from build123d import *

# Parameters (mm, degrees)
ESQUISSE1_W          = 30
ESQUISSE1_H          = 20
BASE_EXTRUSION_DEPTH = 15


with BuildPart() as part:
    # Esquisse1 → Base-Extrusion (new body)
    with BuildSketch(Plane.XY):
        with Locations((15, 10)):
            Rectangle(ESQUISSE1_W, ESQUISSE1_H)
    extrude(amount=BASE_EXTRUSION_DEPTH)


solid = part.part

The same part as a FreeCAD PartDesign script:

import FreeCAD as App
import Part
import Sketcher
from FreeCAD import Vector


def add_polygon(sketch, points):
    """Adds a closed chain of lines whose ends are joined by coincident constraints."""
    first, n = sketch.GeometryCount, len(points)
    for a, b in zip(points, points[1:] + points[:1]):
        sketch.addGeometry(Part.LineSegment(App.Vector(*a, 0), App.Vector(*b, 0)), False)
    for i in range(n):
        sketch.addConstraint(Sketcher.Constraint("Coincident", first + i, 2, first + (i + 1) % n, 1))

doc = App.newDocument("Part")
body = doc.addObject("PartDesign::Body", "Body")

sketch1 = body.newObject("Sketcher::SketchObject", "Sketch")
sketch1.AttachmentSupport = (doc.getObject("XY_Plane"), [""])
sketch1.MapMode = "FlatFace"
add_polygon(sketch1, [(0, 20), (0, 0), (30, 0), (30, 20)])
sketch1.addConstraint(Sketcher.Constraint("Vertical", 0))
sketch1.addConstraint(Sketcher.Constraint("Horizontal", 1))
sketch1.addConstraint(Sketcher.Constraint("Vertical", 2))
sketch1.addConstraint(Sketcher.Constraint("Horizontal", 3))
sketch1.addConstraint(Sketcher.Constraint("Coincident", 0, 2, -1, 1))
sketch1.addConstraint(Sketcher.Constraint("DistanceX", 1, 1, 1, 2, 30.0))
sketch1.addConstraint(Sketcher.Constraint("DistanceY", 0, 2, 0, 1, 20.0))
pad1 = body.newObject("PartDesign::Pad", "Pad")
pad1.Profile = sketch1
pad1.Length = 15

doc.recompute()
